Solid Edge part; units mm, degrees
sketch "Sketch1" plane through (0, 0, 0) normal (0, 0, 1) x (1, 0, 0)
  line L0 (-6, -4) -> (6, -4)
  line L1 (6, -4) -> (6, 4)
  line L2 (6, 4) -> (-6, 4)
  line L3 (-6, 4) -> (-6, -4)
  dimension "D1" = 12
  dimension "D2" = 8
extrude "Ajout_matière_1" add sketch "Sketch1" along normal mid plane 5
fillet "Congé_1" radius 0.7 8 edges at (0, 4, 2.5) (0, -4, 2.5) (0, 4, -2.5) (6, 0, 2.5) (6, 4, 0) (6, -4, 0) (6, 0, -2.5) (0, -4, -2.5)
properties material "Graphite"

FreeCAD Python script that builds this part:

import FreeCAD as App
import Part
import Sketcher

V = App.Vector
Q = App.Units.Quantity


def edges_at(feature, points):
    """Names of the edges that pass closest to the given points."""
    edges = feature.Shape.Edges
    near = lambda p: min(range(len(edges)), key=lambda i: edges[i].distToShape(Part.Vertex(*p))[0])
    return sorted({f"Edge{near(p) + 1}" for p in points})


def add_polygon(sketch, points):
    """Adds a closed chain of lines whose ends are joined by coincident constraints."""
    first, n = sketch.GeometryCount, len(points)
    for a, b in zip(points, points[1:] + points[:1]):
        sketch.addGeometry(Part.LineSegment(App.Vector(*a, 0), App.Vector(*b, 0)), False)
    for i in range(n):
        sketch.addConstraint(Sketcher.Constraint("Coincident", first + i, 2, first + (i + 1) % n, 1))

doc = App.newDocument("Part")
body = doc.addObject("PartDesign::Body", "Body")

# Sketch on XY plane
sketch1 = body.newObject("Sketcher::SketchObject", "Sketch")
sketch1.AttachmentSupport = (doc.getObject("XY_Plane"), [""])
sketch1.MapMode = "FlatFace"
add_polygon(sketch1, [(-6, 4), (-6, -4), (6, -4), (6, 4)])  # lines 0-3
sketch1.addConstraint([
    Sketcher.Constraint("Vertical", 0),
    Sketcher.Constraint("Horizontal", 1),
    Sketcher.Constraint("Vertical", 2),
    Sketcher.Constraint("Horizontal", 3),
    Sketcher.Constraint("Symmetric", 0, 2, 2, 2, -1, 1),
    Sketcher.Constraint("DistanceX", 0, 2, -1, 1, Q("6 mm")),
    Sketcher.Constraint("DistanceY", 0, 2, 0, 1, Q("8 mm")),
])
pad1 = body.newObject("PartDesign::Pad", "Pad")
pad1.Profile = sketch1
pad1.Length = 5
pad1.Midplane = True
doc.recompute()

fillet = body.newObject("PartDesign::Fillet", "Fillet")
fillet.Base = (pad1, edges_at(pad1, [
    (0, 4, 2.5),
    (0, -4, 2.5),
    (0, 4, -2.5),
    (6, 0, 2.5),
    (6, 4, 0),
    (6, -4, 0),
    (6, 0, -2.5),
    (0, -4, -2.5),
]))
fillet.Radius = 0.7

doc.recompute()
